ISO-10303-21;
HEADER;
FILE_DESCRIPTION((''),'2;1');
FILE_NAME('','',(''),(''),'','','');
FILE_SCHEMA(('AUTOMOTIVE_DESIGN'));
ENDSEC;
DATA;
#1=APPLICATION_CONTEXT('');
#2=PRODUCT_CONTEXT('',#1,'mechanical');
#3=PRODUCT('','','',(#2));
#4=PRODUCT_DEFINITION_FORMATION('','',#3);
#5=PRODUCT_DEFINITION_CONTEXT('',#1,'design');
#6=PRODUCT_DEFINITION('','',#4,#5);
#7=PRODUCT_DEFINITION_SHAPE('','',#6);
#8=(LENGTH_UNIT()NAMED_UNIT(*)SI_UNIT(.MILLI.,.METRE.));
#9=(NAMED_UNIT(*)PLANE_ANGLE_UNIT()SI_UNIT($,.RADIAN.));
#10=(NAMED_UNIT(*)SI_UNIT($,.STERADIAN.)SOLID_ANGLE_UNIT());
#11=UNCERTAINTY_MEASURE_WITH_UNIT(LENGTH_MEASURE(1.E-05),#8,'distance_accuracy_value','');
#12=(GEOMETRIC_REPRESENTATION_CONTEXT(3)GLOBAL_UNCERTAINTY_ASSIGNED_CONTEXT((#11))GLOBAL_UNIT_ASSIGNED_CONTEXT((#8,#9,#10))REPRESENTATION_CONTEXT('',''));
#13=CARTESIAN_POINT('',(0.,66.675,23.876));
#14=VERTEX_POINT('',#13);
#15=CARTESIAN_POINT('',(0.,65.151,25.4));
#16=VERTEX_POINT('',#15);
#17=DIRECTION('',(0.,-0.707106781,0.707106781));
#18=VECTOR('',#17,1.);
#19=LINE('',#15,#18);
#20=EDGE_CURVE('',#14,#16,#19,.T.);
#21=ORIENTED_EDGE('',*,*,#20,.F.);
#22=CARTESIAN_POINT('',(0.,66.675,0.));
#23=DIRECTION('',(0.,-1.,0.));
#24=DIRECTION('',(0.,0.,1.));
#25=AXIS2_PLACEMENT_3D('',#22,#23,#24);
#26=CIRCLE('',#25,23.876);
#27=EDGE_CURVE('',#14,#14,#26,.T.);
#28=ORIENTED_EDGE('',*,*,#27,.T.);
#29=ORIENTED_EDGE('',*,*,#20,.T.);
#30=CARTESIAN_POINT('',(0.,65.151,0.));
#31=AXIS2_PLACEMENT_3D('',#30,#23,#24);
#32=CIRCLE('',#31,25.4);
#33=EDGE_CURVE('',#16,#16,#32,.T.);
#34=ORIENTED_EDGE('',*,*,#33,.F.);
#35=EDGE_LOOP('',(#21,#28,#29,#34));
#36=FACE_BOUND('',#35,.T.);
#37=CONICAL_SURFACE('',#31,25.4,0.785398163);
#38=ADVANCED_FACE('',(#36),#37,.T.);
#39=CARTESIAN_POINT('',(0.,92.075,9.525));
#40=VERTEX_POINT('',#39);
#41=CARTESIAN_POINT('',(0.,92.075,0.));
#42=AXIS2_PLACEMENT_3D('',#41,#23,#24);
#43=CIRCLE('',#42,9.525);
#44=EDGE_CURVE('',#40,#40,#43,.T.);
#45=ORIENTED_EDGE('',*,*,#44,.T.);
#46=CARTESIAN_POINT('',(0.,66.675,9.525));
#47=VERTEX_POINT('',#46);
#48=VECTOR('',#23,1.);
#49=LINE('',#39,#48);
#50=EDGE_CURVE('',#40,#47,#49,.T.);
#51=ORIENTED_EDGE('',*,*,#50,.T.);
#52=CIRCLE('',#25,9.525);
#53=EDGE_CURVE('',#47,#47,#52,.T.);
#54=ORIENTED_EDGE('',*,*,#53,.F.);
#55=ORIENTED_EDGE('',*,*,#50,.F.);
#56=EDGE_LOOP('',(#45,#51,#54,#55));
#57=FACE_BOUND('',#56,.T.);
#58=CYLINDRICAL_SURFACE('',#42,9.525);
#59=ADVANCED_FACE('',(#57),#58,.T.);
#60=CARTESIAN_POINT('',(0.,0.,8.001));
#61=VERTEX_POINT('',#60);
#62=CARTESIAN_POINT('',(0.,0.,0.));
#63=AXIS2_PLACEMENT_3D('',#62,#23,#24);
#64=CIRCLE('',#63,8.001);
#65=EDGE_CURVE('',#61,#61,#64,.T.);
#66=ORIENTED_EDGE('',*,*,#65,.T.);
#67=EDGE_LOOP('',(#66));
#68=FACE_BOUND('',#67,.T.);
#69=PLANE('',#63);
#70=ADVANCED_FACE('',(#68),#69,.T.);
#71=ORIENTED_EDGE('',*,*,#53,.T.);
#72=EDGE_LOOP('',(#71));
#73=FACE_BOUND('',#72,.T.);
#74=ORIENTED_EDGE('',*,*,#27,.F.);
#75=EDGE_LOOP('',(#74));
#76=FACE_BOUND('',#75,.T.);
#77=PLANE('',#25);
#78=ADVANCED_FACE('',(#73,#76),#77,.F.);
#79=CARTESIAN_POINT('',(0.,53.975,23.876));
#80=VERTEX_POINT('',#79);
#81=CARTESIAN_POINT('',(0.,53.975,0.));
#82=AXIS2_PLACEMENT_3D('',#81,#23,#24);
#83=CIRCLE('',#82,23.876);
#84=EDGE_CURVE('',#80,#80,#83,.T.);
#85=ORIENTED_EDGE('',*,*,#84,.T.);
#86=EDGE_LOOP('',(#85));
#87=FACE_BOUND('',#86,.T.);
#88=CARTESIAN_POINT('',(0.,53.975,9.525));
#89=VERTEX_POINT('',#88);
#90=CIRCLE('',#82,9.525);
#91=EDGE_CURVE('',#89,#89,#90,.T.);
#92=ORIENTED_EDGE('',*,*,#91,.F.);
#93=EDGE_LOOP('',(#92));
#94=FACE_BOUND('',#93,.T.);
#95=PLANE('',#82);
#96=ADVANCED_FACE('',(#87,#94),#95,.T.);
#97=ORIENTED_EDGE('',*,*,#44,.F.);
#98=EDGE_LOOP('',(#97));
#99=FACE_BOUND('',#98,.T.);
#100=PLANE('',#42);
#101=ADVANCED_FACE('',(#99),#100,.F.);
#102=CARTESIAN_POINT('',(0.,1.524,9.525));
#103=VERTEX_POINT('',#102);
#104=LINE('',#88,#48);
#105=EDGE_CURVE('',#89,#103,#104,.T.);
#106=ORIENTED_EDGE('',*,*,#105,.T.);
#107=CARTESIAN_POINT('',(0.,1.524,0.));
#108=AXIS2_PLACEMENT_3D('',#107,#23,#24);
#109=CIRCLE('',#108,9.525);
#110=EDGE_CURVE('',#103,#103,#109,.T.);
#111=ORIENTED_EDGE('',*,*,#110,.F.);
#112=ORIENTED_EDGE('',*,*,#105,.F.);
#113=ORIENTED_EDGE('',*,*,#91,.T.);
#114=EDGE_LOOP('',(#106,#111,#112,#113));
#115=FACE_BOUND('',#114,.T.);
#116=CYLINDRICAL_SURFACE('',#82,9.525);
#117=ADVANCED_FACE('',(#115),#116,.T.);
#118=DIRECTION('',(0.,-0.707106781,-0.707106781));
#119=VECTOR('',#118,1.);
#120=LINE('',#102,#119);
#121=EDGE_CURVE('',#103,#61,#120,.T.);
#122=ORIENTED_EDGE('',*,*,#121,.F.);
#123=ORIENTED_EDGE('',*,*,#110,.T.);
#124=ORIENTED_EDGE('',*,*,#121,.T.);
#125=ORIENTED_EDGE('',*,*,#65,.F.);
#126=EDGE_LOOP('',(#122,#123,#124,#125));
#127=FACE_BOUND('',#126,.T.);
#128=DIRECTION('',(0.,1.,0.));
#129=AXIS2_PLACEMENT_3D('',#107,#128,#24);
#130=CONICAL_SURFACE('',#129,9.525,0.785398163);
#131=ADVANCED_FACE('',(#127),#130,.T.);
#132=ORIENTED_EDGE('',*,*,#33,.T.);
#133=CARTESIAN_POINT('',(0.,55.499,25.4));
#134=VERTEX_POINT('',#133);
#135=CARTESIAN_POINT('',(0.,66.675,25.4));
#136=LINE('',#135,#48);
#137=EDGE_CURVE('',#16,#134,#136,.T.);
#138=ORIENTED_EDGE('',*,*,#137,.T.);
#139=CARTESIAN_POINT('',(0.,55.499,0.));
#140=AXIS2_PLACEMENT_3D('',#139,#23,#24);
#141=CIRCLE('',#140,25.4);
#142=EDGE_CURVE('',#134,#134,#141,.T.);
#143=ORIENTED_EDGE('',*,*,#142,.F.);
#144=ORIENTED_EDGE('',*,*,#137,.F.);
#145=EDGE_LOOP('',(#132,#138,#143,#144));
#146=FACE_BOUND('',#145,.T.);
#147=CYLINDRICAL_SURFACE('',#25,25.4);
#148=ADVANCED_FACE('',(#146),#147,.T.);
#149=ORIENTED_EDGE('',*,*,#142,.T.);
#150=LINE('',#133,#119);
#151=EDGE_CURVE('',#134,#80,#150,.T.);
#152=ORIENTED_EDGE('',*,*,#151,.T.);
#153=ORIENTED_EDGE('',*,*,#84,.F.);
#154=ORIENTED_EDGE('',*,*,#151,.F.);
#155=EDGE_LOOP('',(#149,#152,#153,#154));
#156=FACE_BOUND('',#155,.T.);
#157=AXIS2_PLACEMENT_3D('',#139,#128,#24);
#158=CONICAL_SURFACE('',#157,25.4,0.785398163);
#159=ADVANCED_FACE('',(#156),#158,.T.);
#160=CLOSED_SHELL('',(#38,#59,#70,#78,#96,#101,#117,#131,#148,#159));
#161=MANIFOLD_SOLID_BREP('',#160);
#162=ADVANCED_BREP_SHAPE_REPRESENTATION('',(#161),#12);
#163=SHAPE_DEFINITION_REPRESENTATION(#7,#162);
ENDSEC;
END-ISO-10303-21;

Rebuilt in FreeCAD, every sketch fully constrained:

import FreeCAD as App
import Part
import Sketcher

V = App.Vector
Q = App.Units.Quantity


def edges_at(feature, points):
    """Names of the edges that pass closest to the given points."""
    edges = feature.Shape.Edges
    near = lambda p: min(range(len(edges)), key=lambda i: edges[i].distToShape(Part.Vertex(*p))[0])
    return sorted({f"Edge{near(p) + 1}" for p in points})


def add_polygon(sketch, points):
    """Adds a closed chain of lines whose ends are joined by coincident constraints."""
    first, n = sketch.GeometryCount, len(points)
    for a, b in zip(points, points[1:] + points[:1]):
        sketch.addGeometry(Part.LineSegment(App.Vector(*a, 0), App.Vector(*b, 0)), False)
    for i in range(n):
        sketch.addConstraint(Sketcher.Constraint("Coincident", first + i, 2, first + (i + 1) % n, 1))

doc = App.newDocument("Part")
body = doc.addObject("PartDesign::Body", "Body")

# Sketch on YZ plane
sketch1 = body.newObject("Sketcher::SketchObject", "Sketch")
sketch1.AttachmentSupport = (doc.getObject("YZ_Plane"), [""])
sketch1.MapMode = "FlatFace"
add_polygon(sketch1, [(54, 10), (0, 10), (0, 0), (92, 0), (92, 10), (67, 10), (67, 25), (54, 25)])  # lines 0-7
sketch1.addConstraint([
    Sketcher.Constraint("Horizontal", 0),
    Sketcher.Constraint("Vertical", 1),
    Sketcher.Constraint("Horizontal", 2),
    Sketcher.Constraint("Vertical", 3),
    Sketcher.Constraint("Horizontal", 4),
    Sketcher.Constraint("Vertical", 5),
    Sketcher.Constraint("Horizontal", 6),
    Sketcher.Constraint("Vertical", 7),
    Sketcher.Constraint("Coincident", 1, 2, -1, 1),
    Sketcher.Constraint("Horizontal", 0, 2, 3, 2),
    Sketcher.Constraint("DistanceX", 4, 2, 4, 1, Q("1 in")),
    Sketcher.Constraint("DistanceX", 6, 2, 6, 1, Q("0.5 in")),
    Sketcher.Constraint("DistanceY", -1, 1, 5, 2, Q("1 in")),
    Sketcher.Constraint("DistanceX", 0, 2, 0, 1, Q("2.125 in")),
    Sketcher.Constraint("DistanceY", 1, 2, 1, 1, Q("0.375 in")),
])
revolution = body.newObject("PartDesign::Revolution", "Revolution")
revolution.Profile = sketch1
revolution.ReferenceAxis = (sketch1, ["H_Axis"])
revolution.Angle = 360
doc.recompute()

chamfer = body.newObject("PartDesign::Chamfer", "Chamfer")
chamfer.Base = (revolution, edges_at(revolution, [(0, 53.975, -25.4), (0, 66.675, -25.4), (0, 0, -9.525)]))
chamfer.Size = Q("0.06 in")

doc.recompute()
